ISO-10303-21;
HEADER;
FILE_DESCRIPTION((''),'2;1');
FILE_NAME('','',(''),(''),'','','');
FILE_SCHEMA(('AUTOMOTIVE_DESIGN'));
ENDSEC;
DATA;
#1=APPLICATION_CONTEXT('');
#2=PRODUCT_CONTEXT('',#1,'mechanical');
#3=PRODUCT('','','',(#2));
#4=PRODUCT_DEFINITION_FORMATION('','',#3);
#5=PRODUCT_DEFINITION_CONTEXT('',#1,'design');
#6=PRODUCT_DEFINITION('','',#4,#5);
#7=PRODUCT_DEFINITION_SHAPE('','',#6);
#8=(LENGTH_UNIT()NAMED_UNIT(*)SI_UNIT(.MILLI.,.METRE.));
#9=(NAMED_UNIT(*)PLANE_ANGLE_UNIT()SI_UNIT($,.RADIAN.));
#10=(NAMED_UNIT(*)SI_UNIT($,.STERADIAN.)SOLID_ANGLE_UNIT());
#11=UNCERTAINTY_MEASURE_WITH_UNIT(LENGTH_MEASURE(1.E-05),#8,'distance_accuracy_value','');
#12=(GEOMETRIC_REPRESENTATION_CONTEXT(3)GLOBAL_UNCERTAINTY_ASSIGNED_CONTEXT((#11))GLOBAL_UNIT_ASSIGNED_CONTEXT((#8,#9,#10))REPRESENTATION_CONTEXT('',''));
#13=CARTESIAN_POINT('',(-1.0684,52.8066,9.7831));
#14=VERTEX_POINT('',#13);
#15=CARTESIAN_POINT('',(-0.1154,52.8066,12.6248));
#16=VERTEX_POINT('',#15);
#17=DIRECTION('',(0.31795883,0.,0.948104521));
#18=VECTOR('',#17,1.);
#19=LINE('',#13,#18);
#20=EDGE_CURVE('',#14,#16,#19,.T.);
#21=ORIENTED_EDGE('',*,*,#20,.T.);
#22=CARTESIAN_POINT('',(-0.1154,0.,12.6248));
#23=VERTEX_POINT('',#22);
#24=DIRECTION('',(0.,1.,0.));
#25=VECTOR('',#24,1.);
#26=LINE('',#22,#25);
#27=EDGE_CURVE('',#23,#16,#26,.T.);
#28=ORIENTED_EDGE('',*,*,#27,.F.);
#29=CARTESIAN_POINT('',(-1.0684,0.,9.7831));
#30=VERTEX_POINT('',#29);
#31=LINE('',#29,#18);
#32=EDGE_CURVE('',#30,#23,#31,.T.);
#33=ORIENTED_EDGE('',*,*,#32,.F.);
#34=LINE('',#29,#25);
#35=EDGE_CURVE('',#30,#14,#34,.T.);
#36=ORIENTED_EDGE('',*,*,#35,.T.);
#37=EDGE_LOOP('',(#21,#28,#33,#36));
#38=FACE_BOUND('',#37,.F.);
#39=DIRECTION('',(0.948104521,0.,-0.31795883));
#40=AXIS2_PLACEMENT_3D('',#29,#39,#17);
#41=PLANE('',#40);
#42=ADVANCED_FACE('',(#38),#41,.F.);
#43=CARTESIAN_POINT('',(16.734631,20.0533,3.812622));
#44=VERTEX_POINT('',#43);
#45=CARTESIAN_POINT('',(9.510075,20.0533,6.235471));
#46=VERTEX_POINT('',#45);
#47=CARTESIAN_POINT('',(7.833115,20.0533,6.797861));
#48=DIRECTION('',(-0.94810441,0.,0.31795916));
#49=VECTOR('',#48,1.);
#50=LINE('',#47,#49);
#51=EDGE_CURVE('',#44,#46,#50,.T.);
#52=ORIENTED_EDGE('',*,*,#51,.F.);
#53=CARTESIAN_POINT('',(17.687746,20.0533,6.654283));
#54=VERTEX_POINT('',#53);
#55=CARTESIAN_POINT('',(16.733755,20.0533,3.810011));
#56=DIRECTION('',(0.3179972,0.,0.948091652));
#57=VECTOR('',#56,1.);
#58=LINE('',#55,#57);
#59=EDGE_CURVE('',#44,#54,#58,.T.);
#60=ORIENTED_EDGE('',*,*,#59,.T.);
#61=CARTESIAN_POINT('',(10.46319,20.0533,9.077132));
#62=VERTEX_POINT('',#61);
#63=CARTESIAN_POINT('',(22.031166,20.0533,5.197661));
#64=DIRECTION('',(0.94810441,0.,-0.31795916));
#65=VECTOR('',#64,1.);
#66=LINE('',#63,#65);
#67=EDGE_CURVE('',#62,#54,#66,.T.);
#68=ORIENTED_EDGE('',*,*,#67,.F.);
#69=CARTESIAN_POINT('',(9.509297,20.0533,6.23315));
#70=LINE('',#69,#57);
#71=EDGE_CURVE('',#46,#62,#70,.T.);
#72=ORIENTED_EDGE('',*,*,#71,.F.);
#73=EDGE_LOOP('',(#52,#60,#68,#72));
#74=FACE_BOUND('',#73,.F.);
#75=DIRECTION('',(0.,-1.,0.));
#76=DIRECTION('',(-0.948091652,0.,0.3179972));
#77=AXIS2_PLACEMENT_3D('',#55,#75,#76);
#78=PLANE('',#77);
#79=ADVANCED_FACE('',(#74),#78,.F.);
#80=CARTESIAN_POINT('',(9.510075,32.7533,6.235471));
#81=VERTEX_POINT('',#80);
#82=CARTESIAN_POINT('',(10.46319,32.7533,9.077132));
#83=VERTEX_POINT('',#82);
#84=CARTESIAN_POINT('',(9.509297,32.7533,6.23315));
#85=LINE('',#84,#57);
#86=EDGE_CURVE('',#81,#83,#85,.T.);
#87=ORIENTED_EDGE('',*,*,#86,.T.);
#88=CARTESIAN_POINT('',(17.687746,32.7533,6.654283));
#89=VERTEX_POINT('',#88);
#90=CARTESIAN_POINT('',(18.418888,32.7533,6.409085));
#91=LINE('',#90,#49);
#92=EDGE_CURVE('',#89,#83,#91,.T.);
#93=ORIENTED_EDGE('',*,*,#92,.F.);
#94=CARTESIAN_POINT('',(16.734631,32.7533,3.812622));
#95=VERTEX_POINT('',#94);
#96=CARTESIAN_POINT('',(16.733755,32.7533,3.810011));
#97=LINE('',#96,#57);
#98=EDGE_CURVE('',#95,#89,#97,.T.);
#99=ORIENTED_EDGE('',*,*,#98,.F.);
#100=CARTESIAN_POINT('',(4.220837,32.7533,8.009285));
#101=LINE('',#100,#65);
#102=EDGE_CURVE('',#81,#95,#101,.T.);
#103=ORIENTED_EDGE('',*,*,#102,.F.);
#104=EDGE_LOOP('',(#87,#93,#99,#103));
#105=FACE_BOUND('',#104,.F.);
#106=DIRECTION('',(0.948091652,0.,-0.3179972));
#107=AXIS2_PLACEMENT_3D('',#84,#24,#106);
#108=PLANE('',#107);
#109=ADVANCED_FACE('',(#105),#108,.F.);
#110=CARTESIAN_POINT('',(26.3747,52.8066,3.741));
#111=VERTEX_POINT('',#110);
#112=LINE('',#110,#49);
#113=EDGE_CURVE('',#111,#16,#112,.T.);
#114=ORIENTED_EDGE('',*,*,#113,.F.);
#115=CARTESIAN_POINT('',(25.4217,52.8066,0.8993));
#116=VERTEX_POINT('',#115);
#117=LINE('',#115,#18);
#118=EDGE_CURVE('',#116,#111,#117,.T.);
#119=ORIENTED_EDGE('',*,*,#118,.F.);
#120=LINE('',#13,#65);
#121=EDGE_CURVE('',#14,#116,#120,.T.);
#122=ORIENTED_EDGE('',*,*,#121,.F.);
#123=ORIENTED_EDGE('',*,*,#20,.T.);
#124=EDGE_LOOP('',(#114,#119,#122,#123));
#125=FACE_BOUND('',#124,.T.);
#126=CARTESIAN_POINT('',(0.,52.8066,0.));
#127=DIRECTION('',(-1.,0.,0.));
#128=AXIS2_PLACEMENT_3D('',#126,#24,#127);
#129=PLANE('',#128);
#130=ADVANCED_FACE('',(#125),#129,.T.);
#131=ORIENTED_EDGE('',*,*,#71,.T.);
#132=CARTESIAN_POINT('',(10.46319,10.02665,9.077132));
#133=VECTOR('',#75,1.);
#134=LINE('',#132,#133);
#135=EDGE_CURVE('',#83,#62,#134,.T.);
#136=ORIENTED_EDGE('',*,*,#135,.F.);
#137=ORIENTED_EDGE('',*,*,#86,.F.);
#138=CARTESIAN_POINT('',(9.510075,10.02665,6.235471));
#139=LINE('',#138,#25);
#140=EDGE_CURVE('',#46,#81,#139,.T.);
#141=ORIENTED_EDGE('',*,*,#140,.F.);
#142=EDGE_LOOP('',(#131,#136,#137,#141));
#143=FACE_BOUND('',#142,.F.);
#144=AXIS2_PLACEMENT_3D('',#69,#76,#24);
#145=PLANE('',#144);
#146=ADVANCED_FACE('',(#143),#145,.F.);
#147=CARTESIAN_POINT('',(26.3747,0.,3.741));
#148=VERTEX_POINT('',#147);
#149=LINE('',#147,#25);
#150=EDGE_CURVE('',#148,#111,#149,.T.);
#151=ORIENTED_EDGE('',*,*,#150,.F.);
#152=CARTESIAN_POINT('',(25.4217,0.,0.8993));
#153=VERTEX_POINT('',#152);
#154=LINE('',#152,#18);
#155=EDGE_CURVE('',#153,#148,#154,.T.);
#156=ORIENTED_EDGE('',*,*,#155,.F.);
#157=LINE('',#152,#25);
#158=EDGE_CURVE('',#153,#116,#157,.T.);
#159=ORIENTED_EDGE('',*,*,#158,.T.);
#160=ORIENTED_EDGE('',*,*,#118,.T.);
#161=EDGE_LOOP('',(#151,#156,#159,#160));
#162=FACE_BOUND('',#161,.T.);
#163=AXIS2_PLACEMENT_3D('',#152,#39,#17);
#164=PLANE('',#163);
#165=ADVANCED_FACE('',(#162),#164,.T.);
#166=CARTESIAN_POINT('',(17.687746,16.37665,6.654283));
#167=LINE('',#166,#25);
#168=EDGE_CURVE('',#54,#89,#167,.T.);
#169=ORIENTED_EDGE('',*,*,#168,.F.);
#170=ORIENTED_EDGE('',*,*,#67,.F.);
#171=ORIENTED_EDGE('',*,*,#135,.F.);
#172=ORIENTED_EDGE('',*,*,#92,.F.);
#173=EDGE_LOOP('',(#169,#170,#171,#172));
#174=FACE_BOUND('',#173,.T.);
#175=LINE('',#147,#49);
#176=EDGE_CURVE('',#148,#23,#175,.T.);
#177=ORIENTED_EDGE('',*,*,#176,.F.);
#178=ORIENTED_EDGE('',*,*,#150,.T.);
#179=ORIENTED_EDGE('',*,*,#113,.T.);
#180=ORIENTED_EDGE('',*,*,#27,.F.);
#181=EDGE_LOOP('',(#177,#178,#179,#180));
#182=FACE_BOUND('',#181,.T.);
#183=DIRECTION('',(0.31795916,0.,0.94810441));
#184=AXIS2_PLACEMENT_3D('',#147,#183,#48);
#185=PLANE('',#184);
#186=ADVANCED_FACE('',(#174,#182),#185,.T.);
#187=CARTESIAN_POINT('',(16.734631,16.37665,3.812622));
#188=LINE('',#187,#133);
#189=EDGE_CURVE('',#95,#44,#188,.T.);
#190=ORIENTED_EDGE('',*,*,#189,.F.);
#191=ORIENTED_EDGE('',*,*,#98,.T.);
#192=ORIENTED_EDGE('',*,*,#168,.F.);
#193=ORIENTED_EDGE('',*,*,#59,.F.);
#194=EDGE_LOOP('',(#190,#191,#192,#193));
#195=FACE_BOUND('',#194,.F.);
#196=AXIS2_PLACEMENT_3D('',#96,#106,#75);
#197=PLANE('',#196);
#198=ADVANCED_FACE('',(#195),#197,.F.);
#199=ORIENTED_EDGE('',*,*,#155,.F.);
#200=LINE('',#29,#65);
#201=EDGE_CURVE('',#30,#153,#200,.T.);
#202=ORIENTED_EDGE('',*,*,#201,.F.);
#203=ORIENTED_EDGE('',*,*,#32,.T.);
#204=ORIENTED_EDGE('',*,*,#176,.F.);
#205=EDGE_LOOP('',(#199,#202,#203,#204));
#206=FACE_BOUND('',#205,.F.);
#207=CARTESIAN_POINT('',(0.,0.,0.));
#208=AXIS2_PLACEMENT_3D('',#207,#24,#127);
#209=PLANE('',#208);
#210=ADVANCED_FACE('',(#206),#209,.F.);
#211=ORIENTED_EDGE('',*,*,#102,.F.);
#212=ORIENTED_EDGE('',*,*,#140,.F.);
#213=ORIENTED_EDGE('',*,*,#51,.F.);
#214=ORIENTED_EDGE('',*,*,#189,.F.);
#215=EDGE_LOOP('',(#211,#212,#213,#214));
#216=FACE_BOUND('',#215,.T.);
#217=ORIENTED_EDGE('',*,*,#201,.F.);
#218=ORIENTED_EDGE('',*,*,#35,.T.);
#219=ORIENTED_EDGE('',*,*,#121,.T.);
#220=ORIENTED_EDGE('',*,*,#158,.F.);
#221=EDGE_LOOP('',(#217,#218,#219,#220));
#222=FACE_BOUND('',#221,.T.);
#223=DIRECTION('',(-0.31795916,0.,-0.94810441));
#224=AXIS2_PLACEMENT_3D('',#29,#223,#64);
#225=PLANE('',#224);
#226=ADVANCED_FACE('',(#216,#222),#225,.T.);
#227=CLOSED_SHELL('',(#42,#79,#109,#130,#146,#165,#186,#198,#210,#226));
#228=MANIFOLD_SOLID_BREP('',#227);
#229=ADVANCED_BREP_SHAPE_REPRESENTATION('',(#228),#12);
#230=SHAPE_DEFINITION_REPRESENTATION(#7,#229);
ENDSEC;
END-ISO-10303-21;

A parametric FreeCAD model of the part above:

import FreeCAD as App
import Part
import Sketcher
Q = App.Units.Quantity


def add_polygon(sketch, points):
    """Adds a closed chain of lines whose ends are joined by coincident constraints."""
    first, n = sketch.GeometryCount, len(points)
    for a, b in zip(points, points[1:] + points[:1]):
        sketch.addGeometry(Part.LineSegment(App.Vector(*a, 0), App.Vector(*b, 0)), False)
    for i in range(n):
        sketch.addConstraint(Sketcher.Constraint("Coincident", first + i, 2, first + (i + 1) % n, 1))

doc = App.newDocument("Part")
body = doc.addObject("PartDesign::Body", "Body")

# Sketch on XZ plane
sketch1 = doc.addObject("Sketcher::SketchObject", "Sketch")
body.addObject(sketch1)
sketch1.AttachmentSupport = (doc.XZ_Plane, [""])
sketch1.MapMode = "FlatFace"
add_polygon(sketch1, [(25.4217, 0.8993), (-1.0684, 9.7831), (-0.1154, 12.6248), (26.3747, 3.741)])  # lines 0-3
sketch1.addConstraint([
    Sketcher.Constraint("Perpendicular", 0, 1),
    Sketcher.Constraint("Perpendicular", 1, 2),
    Sketcher.Constraint("Perpendicular", 2, 3),
    Sketcher.Constraint("Distance", 0, Q("1.1 in")),
    Sketcher.Constraint("Distance", 1, Q("0.118 in")),
    Sketcher.Constraint("Angle", 0, Q("161.4605 deg")),
    Sketcher.Constraint("DistanceY", -1, 1, 3, 2, Q("0.0354 in")),
    Sketcher.Constraint("DistanceX", 0, 2, -1, 1, 1.0684),
])
pad1 = doc.addObject("PartDesign::Pad", "Pad")
body.addObject(pad1)
pad1.Profile = sketch1
pad1.Length = Q("2.079 in")
pad1.Reversed = True

# Sketch on an angled plane
sketch2 = doc.addObject("Sketcher::SketchObject", "Sketch001")
body.addObject(sketch2)
sketch2.Placement = App.Placement(App.Vector(-1.0684, 0, 9.7831), App.Rotation(App.Vector(-0.948091652, 0, 0.3179972), App.Vector(0, 1, 0), App.Vector(-0.3179972, 0, -0.948091652), "ZXY"))
add_polygon(sketch2, [(-18.7775, 32.7533), (-18.7775, 20.0533), (-11.1575, 20.0533), (-11.1575, 32.7533)])  # lines 0-3
sketch2.addConstraint([
    Sketcher.Constraint("Vertical", 0),
    Sketcher.Constraint("Horizontal", 1),
    Sketcher.Constraint("Vertical", 2),
    Sketcher.Constraint("Horizontal", 3),
    Sketcher.Constraint("DistanceX", 1, 1, 1, 2, Q("0.3 in")),
    Sketcher.Constraint("DistanceY", 0, 2, 0, 1, Q("0.5 in")),
    Sketcher.Constraint("DistanceY", -1, 1, 0, 2, Q("0.7895 in")),
    Sketcher.Constraint("DistanceX", 0, 2, -1, 1, 18.7775),
])
pocket1 = doc.addObject("PartDesign::Pocket", "Pocket")
body.addObject(pocket1)
pocket1.Profile = sketch2
pocket1.Length = Q("1 in")

doc.recompute()
